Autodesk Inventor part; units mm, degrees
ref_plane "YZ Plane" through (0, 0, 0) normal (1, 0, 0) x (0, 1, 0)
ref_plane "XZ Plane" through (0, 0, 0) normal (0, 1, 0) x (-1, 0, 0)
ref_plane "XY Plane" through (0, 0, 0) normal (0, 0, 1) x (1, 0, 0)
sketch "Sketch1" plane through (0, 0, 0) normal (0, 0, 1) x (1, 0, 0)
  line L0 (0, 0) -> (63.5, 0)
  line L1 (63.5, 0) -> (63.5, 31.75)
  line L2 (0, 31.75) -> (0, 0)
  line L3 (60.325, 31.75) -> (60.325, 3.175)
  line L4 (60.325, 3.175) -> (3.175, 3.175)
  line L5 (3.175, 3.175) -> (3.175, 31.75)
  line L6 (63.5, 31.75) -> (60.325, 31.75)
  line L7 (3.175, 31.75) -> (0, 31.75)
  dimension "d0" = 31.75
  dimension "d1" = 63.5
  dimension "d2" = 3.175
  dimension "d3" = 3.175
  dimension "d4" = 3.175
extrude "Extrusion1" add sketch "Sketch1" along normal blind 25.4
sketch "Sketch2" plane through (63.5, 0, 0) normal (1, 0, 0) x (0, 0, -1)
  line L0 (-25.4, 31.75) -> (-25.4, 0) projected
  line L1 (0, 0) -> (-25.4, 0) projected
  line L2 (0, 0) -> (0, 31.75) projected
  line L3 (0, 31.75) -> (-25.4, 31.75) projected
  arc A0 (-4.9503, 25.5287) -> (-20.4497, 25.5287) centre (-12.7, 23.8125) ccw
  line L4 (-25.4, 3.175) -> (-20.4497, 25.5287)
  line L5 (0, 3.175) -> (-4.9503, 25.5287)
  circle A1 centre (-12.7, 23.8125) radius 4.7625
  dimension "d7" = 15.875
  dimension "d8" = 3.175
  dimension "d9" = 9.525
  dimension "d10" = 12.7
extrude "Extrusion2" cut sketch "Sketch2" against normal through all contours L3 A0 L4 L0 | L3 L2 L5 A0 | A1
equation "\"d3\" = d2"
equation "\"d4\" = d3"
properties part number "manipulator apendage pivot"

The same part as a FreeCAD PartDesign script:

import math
import FreeCAD as App
import Part
import Sketcher

V = App.Vector
Q = App.Units.Quantity


def add_polygon(sketch, points):
    """Adds a closed chain of lines whose ends are joined by coincident constraints."""
    first, n = sketch.GeometryCount, len(points)
    for a, b in zip(points, points[1:] + points[:1]):
        sketch.addGeometry(Part.LineSegment(App.Vector(*a, 0), App.Vector(*b, 0)), False)
    for i in range(n):
        sketch.addConstraint(Sketcher.Constraint("Coincident", first + i, 2, first + (i + 1) % n, 1))

doc = App.newDocument("Part")
params = doc.addObject("Spreadsheet::Sheet", "Params")
for row, (alias, value) in enumerate([
    ("sketch1_width", "2.5 in"),
    ("sketch1_height", "1.25 in"),
    ("sketch1_width2", "0.125 in"),
    ("pad1_length", "1 in"),
    ("sketch2_diameter", "0.375 in"),
    ("sketch2_height", "0.5 in"),
    ("sketch2_radius", "0.3125 in"),
    ("sketch2_width", "1.125 in"),
], start=1):
    params.set(f"A{row}", alias)
    params.set(f"B{row}", "=" + value)
    params.setAlias(f"B{row}", alias)

body = doc.addObject("PartDesign::Body", "Body")

sketch1 = doc.addObject("Sketcher::SketchObject", "Sketch")
body.addObject(sketch1)
sketch1.AttachmentSupport = (doc.XY_Plane, [""])
sketch1.MapMode = "FlatFace"
add_polygon(sketch1, [(0, 31.8), (0, 0), (63.5, 0), (63.5, 31.8), (60.3, 31.8), (60.3, 3.2), (3.2, 3.2), (3.2, 31.8)])
sketch1.addConstraint([
    Sketcher.Constraint("Vertical", 0),
    Sketcher.Constraint("Horizontal", 1),
    Sketcher.Constraint("Vertical", 2),
    Sketcher.Constraint("Horizontal", 3),
    Sketcher.Constraint("Vertical", 4),
    Sketcher.Constraint("Horizontal", 5),
    Sketcher.Constraint("Vertical", 6),
    Sketcher.Constraint("Horizontal", 7),
    Sketcher.Constraint("Coincident", 0, 2, -1, 1),
    Sketcher.Constraint("Horizontal", 3, 2, 6, 2),
    Sketcher.Constraint("Equal", 3, 7),
    Sketcher.Constraint("DistanceX", 1, 1, 1, 2, Q("2.5 in")),
    Sketcher.Constraint("DistanceY", 0, 2, 0, 1, Q("1.25 in")),
    Sketcher.Constraint("DistanceX", 3, 2, 3, 1, Q("0.125 in")),
    Sketcher.Constraint("DistanceY", -1, 1, 4, 2, Q("0.125 in")),
])
sketch1.setExpression("Constraints[19]", "Params.sketch1_width")
sketch1.setExpression("Constraints[20]", "Params.sketch1_height")
sketch1.setExpression("Constraints[21]", "Params.sketch1_width2")
pad1 = doc.addObject("PartDesign::Pad", "Pad")
body.addObject(pad1)
pad1.Profile = sketch1
pad1.setExpression("Length", "Params.pad1_length")

sketch2 = doc.addObject("Sketcher::SketchObject", "Sketch001")
body.addObject(sketch2)
sketch2.AttachmentSupport = (doc.YZ_Plane, [""])
sketch2.MapMode = "FlatFace"
sketch2.AttachmentOffset = App.Placement(V(0, 0, 2.5 * 25.4), App.Rotation())
sketch2.addGeometry([
    Part.LineSegment(V(31.8, 12.7, 0), V(31.8, 25.4, 0)),
    Part.LineSegment(V(31.8, 25.4, 0), V(3.2, 25.4, 0)),
    Part.LineSegment(V(3.2, 25.4, 0), V(25.5, 20.4, 0)),
    Part.ArcOfCircle(Part.Circle(V(23.8, 12.7, 0), V(0, 0, 1), 7.9), math.radians(0), math.radians(78)),
    Part.LineSegment(V(31.8, 0, 0), V(31.8, 12.7, 0)),
    Part.ArcOfCircle(Part.Circle(V(23.8, 12.7, 0), V(0, 0, 1), 7.9), math.radians(-78), math.radians(0)),
    Part.LineSegment(V(25.5, 5, 0), V(3.2, 0, 0)),
    Part.LineSegment(V(3.2, 0, 0), V(31.8, 0, 0)),
    Part.Circle(V(23.8, 12.7, 0), V(0, 0, 1), 4.8),
], False)
sketch2.addConstraint([
    Sketcher.Constraint("Coincident", 0, 2, 1, 1),
    Sketcher.Constraint("Coincident", 1, 2, 2, 1),
    Sketcher.Constraint("Tangent", 2, 2, 3, 2),
    Sketcher.Constraint("Tangent", 3, 1, 0, 1),
    Sketcher.Constraint("Tangent", 4, 2, 5, 2),
    Sketcher.Constraint("Tangent", 5, 1, 6, 1),
    Sketcher.Constraint("Coincident", 6, 2, 7, 1),
    Sketcher.Constraint("Coincident", 7, 2, 4, 1),
    Sketcher.Constraint("Vertical", 0),
    Sketcher.Constraint("Horizontal", 1),
    Sketcher.Constraint("Vertical", 4),
    Sketcher.Constraint("Horizontal", 7),
    Sketcher.Constraint("Coincident", 5, 3, 3, 3),
    Sketcher.Constraint("Coincident", 8, 3, 3, 3),
    Sketcher.Constraint("Equal", 3, 5),
    Sketcher.Constraint("PointOnObject", 6, 2, -1),
    Sketcher.Constraint("Vertical", 2, 2, 5, 1),
    Sketcher.Constraint("Vertical", 1, 2, 6, 2),
    Sketcher.Constraint("Diameter", 8, Q("0.375 in")),
    Sketcher.Constraint("DistanceY", 0, 1, 0, 2, Q("0.5 in")),
    Sketcher.Constraint("Radius", 3, Q("0.3125 in")),
    Sketcher.Constraint("DistanceX", -1, 1, 1, 2, Q("0.125 in")),
    Sketcher.Constraint("DistanceX", 1, 2, 1, 1, Q("1.125 in")),
])
sketch2.setExpression("Constraints[18]", "Params.sketch2_diameter")
sketch2.setExpression("Constraints[19]", "Params.sketch2_height")
sketch2.setExpression("Constraints[20]", "Params.sketch2_radius")
sketch2.setExpression("Constraints[22]", "Params.sketch2_width")
pocket1 = doc.addObject("PartDesign::Pocket", "Pocket")
body.addObject(pocket1)
pocket1.Profile = sketch2
pocket1.Type = "ThroughAll"

doc.recompute()
